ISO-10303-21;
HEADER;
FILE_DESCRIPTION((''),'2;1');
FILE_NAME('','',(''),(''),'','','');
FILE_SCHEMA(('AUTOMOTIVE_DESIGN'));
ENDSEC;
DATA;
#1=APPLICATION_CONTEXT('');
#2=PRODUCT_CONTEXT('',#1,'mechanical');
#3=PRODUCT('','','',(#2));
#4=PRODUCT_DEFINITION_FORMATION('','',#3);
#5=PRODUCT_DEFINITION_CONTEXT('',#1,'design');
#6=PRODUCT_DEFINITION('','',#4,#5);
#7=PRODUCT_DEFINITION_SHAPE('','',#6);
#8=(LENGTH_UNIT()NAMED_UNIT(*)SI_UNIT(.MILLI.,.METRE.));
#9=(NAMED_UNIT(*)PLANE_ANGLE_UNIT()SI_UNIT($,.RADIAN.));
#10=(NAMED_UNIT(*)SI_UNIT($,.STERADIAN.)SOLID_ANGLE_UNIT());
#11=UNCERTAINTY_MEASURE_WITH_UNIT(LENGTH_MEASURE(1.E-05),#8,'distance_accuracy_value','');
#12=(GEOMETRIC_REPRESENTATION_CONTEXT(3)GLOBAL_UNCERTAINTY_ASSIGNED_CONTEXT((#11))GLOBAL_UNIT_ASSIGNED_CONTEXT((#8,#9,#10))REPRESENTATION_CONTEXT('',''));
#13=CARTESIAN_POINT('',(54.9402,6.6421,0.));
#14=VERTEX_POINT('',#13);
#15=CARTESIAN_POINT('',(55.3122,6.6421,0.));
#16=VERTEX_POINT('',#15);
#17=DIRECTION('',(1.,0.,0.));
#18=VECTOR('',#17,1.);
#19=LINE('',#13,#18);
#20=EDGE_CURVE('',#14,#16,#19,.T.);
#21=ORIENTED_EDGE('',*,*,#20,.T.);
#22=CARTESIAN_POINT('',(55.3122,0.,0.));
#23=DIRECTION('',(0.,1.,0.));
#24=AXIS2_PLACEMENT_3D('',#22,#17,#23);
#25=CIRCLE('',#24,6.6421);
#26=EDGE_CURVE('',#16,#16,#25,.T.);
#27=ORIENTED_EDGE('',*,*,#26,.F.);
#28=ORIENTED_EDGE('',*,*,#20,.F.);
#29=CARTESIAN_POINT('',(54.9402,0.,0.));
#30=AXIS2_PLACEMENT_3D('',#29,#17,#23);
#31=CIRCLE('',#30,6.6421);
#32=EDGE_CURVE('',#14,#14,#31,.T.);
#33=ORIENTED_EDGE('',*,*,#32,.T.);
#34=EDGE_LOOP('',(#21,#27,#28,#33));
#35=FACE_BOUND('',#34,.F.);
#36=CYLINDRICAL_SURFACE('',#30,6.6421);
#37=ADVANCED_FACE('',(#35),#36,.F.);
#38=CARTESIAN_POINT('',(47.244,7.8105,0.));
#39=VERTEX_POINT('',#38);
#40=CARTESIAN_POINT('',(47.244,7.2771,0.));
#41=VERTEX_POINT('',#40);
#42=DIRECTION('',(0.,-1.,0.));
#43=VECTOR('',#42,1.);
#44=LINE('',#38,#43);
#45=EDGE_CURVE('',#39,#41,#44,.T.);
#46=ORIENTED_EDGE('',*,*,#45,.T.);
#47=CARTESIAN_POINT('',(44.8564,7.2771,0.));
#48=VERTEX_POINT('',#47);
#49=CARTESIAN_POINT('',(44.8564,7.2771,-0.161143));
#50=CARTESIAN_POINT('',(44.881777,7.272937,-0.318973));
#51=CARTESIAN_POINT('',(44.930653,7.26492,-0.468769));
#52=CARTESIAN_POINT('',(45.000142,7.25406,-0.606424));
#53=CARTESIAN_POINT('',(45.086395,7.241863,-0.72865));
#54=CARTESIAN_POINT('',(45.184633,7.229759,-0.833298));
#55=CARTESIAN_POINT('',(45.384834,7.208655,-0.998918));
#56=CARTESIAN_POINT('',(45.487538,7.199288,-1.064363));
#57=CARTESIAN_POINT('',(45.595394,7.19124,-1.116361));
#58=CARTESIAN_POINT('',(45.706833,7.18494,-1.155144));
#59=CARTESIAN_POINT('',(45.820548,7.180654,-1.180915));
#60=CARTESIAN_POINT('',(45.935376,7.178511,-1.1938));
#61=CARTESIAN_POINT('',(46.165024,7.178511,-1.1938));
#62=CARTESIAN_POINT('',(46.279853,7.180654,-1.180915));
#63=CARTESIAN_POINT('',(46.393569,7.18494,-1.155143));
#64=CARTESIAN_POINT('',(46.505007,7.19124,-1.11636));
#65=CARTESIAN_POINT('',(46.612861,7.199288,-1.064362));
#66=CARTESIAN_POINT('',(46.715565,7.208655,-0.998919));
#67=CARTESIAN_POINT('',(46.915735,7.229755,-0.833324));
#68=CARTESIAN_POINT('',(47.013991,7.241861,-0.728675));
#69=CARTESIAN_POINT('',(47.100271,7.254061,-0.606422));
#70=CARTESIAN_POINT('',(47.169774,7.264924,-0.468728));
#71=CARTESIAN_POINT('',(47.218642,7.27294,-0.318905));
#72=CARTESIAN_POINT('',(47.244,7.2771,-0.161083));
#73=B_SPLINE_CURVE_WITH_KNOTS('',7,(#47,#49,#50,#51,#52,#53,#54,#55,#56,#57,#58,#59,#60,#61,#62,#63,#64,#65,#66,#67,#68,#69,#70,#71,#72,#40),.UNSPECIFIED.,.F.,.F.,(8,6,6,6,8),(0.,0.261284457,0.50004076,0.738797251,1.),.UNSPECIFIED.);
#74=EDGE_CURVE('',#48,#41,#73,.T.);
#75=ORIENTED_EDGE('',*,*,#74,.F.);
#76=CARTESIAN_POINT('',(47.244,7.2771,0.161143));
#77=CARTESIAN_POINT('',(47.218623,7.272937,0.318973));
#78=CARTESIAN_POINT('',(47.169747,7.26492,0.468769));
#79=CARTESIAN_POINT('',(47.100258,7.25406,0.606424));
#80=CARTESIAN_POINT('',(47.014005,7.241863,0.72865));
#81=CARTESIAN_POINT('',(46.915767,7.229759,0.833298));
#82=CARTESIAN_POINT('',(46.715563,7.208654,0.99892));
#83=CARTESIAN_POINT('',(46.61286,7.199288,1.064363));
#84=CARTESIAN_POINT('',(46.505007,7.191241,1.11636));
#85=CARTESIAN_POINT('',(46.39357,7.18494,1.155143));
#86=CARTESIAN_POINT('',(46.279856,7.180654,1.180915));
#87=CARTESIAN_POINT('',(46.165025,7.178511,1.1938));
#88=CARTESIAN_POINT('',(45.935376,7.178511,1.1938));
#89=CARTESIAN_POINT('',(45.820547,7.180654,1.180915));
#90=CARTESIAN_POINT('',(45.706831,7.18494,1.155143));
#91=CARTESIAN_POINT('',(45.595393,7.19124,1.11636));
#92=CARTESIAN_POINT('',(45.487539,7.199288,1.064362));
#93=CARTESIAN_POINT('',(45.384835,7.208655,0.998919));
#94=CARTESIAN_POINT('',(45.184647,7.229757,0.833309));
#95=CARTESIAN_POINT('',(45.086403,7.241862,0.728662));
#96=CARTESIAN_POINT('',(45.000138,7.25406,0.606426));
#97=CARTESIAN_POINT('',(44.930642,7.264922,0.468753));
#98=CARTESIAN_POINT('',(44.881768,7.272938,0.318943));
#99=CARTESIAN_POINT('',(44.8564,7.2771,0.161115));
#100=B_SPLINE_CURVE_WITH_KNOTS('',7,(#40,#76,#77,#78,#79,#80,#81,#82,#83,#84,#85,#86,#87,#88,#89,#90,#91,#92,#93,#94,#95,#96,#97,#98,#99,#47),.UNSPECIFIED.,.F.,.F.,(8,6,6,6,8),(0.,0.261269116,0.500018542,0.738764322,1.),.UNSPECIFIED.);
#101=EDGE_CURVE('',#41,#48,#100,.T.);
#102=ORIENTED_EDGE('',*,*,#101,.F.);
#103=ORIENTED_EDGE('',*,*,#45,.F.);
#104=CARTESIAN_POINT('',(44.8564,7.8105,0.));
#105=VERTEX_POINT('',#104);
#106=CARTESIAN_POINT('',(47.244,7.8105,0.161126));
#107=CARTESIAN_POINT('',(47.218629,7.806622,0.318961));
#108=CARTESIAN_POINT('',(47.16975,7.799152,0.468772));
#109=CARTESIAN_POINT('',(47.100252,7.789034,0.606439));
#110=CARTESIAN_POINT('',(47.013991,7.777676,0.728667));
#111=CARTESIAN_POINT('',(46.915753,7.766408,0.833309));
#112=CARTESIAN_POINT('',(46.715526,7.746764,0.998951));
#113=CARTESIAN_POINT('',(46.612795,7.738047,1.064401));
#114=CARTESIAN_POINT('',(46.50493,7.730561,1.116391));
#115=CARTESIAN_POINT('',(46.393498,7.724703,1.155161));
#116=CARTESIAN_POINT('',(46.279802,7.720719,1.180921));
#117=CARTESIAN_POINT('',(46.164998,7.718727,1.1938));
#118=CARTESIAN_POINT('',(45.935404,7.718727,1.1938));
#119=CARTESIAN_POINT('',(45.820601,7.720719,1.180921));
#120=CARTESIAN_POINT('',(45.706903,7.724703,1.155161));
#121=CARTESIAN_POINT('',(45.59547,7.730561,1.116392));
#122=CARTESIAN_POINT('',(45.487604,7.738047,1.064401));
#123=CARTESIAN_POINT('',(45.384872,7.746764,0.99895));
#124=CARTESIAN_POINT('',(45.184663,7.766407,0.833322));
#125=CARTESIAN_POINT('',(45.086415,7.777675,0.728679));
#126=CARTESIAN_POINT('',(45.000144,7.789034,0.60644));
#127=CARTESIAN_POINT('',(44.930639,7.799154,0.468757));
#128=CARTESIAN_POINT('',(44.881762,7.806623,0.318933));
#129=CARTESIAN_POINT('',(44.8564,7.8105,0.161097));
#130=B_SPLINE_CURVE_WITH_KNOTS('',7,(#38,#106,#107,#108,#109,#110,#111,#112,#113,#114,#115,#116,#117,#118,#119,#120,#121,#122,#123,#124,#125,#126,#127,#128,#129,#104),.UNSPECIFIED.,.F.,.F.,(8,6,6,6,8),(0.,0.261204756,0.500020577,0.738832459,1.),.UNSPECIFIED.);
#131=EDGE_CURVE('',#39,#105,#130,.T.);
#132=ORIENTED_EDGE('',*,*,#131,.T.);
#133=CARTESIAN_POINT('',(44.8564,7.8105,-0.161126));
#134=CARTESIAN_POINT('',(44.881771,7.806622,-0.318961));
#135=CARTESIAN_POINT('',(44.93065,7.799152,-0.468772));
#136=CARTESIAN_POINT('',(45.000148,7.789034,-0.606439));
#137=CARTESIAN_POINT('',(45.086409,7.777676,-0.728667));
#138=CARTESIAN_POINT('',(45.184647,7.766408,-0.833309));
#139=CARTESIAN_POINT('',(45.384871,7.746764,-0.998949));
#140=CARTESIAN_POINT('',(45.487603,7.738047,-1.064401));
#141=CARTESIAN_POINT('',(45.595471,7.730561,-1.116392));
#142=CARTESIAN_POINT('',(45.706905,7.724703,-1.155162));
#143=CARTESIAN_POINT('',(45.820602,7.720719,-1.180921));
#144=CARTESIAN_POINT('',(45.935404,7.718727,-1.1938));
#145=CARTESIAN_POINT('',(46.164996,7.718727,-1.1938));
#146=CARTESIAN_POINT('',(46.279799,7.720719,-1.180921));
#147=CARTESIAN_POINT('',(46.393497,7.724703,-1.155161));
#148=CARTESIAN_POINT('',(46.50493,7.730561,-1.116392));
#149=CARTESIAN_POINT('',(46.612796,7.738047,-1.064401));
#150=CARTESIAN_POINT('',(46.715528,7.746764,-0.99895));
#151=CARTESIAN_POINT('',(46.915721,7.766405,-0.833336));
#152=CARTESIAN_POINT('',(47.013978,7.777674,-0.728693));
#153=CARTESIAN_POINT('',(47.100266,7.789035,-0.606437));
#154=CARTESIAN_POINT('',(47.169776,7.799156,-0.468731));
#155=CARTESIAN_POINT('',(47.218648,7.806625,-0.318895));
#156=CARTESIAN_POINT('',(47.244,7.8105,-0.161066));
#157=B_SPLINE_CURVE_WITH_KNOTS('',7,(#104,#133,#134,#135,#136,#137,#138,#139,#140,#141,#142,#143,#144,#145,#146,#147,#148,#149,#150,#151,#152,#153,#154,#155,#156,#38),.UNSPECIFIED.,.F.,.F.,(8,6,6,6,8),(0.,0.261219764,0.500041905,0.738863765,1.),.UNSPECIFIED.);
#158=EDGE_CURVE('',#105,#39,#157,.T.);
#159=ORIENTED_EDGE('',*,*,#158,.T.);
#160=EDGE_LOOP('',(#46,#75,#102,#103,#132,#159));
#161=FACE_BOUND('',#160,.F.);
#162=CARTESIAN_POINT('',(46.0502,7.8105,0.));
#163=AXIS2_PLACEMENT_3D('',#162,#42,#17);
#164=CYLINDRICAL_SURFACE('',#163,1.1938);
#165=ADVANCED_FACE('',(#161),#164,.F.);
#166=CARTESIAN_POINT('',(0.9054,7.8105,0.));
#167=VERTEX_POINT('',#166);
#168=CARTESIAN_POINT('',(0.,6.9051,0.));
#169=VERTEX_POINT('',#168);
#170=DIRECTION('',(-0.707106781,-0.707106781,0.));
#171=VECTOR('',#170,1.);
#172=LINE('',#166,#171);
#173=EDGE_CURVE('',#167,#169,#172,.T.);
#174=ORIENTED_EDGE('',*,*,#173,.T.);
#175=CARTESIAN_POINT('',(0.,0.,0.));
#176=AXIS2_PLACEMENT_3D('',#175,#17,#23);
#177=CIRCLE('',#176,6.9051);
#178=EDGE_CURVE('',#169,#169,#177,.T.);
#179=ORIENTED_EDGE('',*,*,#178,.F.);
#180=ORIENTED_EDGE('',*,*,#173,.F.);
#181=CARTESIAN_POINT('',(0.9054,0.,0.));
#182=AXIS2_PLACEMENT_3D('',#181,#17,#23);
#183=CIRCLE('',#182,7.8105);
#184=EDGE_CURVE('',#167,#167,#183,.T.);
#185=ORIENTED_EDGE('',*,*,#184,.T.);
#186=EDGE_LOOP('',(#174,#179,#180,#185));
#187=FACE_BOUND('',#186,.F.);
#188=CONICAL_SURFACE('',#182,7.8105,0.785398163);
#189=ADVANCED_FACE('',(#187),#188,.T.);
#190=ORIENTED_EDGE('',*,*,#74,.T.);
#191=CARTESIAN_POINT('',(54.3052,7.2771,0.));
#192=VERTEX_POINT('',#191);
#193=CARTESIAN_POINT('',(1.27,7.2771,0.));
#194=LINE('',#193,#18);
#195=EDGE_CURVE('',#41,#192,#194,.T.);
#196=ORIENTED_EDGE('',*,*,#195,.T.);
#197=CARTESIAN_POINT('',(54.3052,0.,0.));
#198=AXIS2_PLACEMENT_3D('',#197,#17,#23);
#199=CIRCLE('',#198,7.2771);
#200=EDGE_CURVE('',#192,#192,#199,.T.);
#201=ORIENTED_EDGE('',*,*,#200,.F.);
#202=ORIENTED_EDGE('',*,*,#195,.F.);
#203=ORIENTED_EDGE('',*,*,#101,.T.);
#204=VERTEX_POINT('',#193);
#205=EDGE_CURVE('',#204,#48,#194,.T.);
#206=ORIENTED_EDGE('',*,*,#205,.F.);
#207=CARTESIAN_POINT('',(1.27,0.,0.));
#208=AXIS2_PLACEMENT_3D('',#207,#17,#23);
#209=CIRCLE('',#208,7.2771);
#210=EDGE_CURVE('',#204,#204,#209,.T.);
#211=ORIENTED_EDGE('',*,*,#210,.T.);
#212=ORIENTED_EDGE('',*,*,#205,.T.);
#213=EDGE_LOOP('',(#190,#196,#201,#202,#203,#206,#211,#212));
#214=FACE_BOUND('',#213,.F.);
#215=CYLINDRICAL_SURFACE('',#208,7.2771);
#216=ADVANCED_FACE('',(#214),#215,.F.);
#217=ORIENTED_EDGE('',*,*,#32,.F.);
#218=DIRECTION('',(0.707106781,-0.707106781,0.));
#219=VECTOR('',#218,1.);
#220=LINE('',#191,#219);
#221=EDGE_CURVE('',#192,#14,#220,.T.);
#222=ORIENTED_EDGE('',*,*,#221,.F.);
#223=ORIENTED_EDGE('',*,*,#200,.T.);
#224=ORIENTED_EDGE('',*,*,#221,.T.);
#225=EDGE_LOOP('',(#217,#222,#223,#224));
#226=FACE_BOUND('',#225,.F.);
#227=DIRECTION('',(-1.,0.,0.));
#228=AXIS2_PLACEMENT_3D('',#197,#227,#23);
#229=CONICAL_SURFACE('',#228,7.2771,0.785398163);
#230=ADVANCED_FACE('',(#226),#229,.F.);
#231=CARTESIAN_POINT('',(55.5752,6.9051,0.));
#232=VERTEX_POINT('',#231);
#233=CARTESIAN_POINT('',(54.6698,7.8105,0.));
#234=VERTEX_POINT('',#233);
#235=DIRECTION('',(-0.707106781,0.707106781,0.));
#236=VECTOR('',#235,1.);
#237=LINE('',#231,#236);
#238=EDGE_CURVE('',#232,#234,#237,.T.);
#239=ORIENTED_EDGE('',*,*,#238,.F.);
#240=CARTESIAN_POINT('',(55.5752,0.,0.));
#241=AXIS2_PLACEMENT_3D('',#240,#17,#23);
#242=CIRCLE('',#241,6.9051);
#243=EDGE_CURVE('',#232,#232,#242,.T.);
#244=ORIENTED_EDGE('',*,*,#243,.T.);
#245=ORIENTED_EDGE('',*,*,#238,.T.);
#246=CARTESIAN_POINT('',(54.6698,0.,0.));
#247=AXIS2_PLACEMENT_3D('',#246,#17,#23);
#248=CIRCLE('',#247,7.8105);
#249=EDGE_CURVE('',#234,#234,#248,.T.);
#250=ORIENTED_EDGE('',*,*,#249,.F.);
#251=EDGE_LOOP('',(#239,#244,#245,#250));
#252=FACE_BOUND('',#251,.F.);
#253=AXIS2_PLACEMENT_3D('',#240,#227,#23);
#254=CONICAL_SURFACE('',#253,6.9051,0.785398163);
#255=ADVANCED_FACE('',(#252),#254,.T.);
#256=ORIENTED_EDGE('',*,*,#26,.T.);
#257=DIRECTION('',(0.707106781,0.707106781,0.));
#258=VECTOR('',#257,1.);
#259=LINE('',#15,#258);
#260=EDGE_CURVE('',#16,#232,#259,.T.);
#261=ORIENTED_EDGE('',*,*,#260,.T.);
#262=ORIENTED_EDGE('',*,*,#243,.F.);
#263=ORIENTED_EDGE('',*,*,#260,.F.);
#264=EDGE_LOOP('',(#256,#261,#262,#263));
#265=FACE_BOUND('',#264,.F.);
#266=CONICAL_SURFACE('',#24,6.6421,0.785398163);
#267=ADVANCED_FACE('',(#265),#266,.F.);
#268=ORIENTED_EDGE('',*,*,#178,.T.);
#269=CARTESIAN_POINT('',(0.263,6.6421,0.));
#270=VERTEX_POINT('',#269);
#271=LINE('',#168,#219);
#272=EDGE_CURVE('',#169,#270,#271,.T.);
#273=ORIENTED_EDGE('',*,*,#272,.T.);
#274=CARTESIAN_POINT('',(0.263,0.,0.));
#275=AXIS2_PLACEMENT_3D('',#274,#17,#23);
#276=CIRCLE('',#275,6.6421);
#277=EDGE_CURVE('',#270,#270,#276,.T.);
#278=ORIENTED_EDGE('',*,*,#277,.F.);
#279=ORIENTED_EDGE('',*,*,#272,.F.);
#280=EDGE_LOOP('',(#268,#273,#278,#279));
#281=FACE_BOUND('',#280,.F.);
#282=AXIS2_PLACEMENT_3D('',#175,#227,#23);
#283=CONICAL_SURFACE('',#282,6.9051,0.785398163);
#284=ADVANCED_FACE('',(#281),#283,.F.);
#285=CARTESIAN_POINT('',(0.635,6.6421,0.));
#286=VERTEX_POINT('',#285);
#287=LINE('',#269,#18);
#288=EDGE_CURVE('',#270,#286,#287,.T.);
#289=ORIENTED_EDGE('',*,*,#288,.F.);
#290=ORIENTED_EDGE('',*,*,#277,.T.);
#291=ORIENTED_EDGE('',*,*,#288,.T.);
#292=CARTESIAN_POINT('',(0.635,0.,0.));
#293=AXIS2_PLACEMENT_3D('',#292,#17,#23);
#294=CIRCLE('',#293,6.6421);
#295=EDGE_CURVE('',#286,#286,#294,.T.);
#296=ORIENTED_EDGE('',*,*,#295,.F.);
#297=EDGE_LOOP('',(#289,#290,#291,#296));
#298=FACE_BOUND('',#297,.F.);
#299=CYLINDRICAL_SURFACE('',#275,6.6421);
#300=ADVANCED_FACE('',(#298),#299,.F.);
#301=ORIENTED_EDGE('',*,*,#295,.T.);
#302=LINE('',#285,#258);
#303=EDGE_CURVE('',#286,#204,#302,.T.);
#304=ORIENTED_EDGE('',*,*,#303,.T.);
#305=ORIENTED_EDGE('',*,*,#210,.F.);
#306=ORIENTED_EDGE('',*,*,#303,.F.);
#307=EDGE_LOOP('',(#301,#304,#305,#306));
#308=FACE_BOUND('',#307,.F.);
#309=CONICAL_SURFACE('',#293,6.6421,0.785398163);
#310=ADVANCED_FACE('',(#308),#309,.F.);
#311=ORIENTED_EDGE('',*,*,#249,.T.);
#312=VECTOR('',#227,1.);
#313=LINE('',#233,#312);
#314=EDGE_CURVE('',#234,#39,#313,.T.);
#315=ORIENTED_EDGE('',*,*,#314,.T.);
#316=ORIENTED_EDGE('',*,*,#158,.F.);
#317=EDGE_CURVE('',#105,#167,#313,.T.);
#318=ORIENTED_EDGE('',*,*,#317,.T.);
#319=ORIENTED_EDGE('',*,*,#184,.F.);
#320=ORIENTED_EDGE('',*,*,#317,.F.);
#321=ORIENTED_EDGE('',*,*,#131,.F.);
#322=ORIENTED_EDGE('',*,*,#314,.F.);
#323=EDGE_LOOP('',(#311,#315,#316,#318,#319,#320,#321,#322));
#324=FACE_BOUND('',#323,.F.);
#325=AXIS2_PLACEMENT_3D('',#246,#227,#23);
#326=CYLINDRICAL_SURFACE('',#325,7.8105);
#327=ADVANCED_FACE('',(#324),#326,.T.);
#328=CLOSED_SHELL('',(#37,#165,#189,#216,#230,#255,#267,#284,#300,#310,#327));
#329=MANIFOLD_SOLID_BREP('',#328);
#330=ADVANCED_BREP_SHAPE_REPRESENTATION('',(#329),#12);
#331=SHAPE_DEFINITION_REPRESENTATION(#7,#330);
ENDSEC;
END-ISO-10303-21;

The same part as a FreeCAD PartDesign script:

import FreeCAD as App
import Part
import Sketcher
from FreeCAD import Vector
Q = App.Units.Quantity

doc = App.newDocument("Part")
body = doc.addObject("PartDesign::Body", "Body")

sketch1 = doc.addObject("Sketcher::SketchObject", "Sketch")
body.addObject(sketch1)
sketch1.AttachmentSupport = (doc.XY_Plane, [""])
sketch1.MapMode = "FlatFace"
sketch1.addGeometry(Part.LineSegment(Vector(0.91, 7.81, 0), Vector(0, 6.91, 0)), False)
sketch1.addGeometry(Part.LineSegment(Vector(0, 6.91, 0), Vector(0.26, 6.64, 0)), False)
sketch1.addGeometry(Part.LineSegment(Vector(0.26, 6.64, 0), Vector(0.64, 6.64, 0)), False)
sketch1.addGeometry(Part.LineSegment(Vector(0.64, 6.64, 0), Vector(1.27, 7.28, 0)), False)
sketch1.addGeometry(Part.LineSegment(Vector(1.27, 7.28, 0), Vector(54.31, 7.28, 0)), False)
sketch1.addGeometry(Part.LineSegment(Vector(54.31, 7.28, 0), Vector(54.94, 6.64, 0)), False)
sketch1.addGeometry(Part.LineSegment(Vector(54.94, 6.64, 0), Vector(55.31, 6.64, 0)), False)
sketch1.addGeometry(Part.LineSegment(Vector(55.31, 6.64, 0), Vector(55.58, 6.91, 0)), False)
sketch1.addGeometry(Part.LineSegment(Vector(55.58, 6.91, 0), Vector(54.67, 7.81, 0)), False)
sketch1.addGeometry(Part.LineSegment(Vector(54.67, 7.81, 0), Vector(0.91, 7.81, 0)), False)
sketch1.addConstraint(Sketcher.Constraint("Coincident", 0, 2, 1, 1))
sketch1.addConstraint(Sketcher.Constraint("Coincident", 1, 2, 2, 1))
sketch1.addConstraint(Sketcher.Constraint("Coincident", 2, 2, 3, 1))
sketch1.addConstraint(Sketcher.Constraint("Coincident", 3, 2, 4, 1))
sketch1.addConstraint(Sketcher.Constraint("Coincident", 4, 2, 5, 1))
sketch1.addConstraint(Sketcher.Constraint("Coincident", 5, 2, 6, 1))
sketch1.addConstraint(Sketcher.Constraint("Coincident", 6, 2, 7, 1))
sketch1.addConstraint(Sketcher.Constraint("Coincident", 7, 2, 8, 1))
sketch1.addConstraint(Sketcher.Constraint("Coincident", 8, 2, 9, 1))
sketch1.addConstraint(Sketcher.Constraint("Coincident", 9, 2, 0, 1))
sketch1.addConstraint(Sketcher.Constraint("Horizontal", 2))
sketch1.addConstraint(Sketcher.Constraint("Horizontal", 4))
sketch1.addConstraint(Sketcher.Constraint("Horizontal", 6))
sketch1.addConstraint(Sketcher.Constraint("Horizontal", 9))
sketch1.addConstraint(Sketcher.Constraint("PointOnObject", 0, 2, -2))
sketch1.addConstraint(Sketcher.Constraint("Perpendicular", 0, 1))
sketch1.addConstraint(Sketcher.Constraint("Perpendicular", 1, 3))
sketch1.addConstraint(Sketcher.Constraint("Perpendicular", 3, 5))
sketch1.addConstraint(Sketcher.Constraint("Perpendicular", 5, 7))
sketch1.addConstraint(Sketcher.Constraint("Perpendicular", 7, 8))
sketch1.addConstraint(Sketcher.Constraint("Horizontal", 2, 2, 5, 2))
sketch1.addConstraint(Sketcher.Constraint("Horizontal", 0, 2, 7, 2))
sketch1.addConstraint(Sketcher.Constraint("Equal", 2, 6))
sketch1.addConstraint(Sketcher.Constraint("Equal", 3, 5))
sketch1.addConstraint(Sketcher.Constraint("DistanceX", 4, 1, 4, 2, Q("2.088 in")))
sketch1.addConstraint(Sketcher.Constraint("DistanceX", -1, 1, 3, 2, Q("0.05 in")))
sketch1.addConstraint(Sketcher.Constraint("DistanceX", 9, 2, 9, 1, Q("2.1167 in")))
sketch1.addConstraint(Sketcher.Constraint("DistanceX", -1, 1, 2, 2, Q("0.025 in")))
sketch1.addConstraint(Sketcher.Constraint("DistanceY", 4, 2, 8, 2, Q("0.021 in")))
sketch1.addConstraint(Sketcher.Constraint("DistanceY", -1, 1, 1, 2, Q("0.2615 in")))
revolution = doc.addObject("PartDesign::Revolution", "Revolution")
body.addObject(revolution)
revolution.Profile = sketch1
revolution.ReferenceAxis = (sketch1, ["H_Axis"])
revolution.Angle = 360

sketch2 = doc.addObject("Sketcher::SketchObject", "Sketch001")
body.addObject(sketch2)
sketch2.AttachmentSupport = (doc.XY_Plane, [""])
sketch2.MapMode = "FlatFace"
sketch2.addGeometry(Part.LineSegment(Vector(46.1, 7.8, 0), Vector(46.1, 0, 0)), False)
sketch2.addGeometry(Part.LineSegment(Vector(46.1, 0, 0), Vector(47.2, 0, 0)), False)
sketch2.addGeometry(Part.LineSegment(Vector(47.2, 0, 0), Vector(47.2, 7.8, 0)), False)
sketch2.addGeometry(Part.LineSegment(Vector(47.2, 7.8, 0), Vector(46.1, 7.8, 0)), False)
sketch2.addGeometry(Part.LineSegment(Vector(46.1, 7.8, 0), Vector(46.1, 0, 0)), True)
sketch2.addConstraint(Sketcher.Constraint("Coincident", 0, 2, 1, 1))
sketch2.addConstraint(Sketcher.Constraint("Coincident", 1, 2, 2, 1))
sketch2.addConstraint(Sketcher.Constraint("Coincident", 2, 2, 3, 1))
sketch2.addConstraint(Sketcher.Constraint("Coincident", 3, 2, 0, 1))
sketch2.addConstraint(Sketcher.Constraint("Vertical", 0))
sketch2.addConstraint(Sketcher.Constraint("Horizontal", 1))
sketch2.addConstraint(Sketcher.Constraint("Vertical", 2))
sketch2.addConstraint(Sketcher.Constraint("Horizontal", 3))
sketch2.addConstraint(Sketcher.Constraint("Vertical", 4))
sketch2.addConstraint(Sketcher.Constraint("Coincident", 4, 1, 3, 2))
sketch2.addConstraint(Sketcher.Constraint("PointOnObject", 0, 2, -1))
sketch2.addConstraint(Sketcher.Constraint("PointOnObject", 4, 2, -1))
sketch2.addConstraint(Sketcher.Constraint("DistanceX", 1, 1, 1, 2, Q("0.047 in")))
sketch2.addConstraint(Sketcher.Constraint("DistanceX", -1, 1, 1, 2, Q("1.86 in")))
sketch2.addConstraint(Sketcher.Constraint("DistanceY", 0, 2, 0, 1, Q("0.3075 in")))
groove = doc.addObject("PartDesign::Groove", "Groove")
body.addObject(groove)
groove.Profile = sketch2
groove.ReferenceAxis = (sketch2, ["Axis0"])
groove.Angle = 360

doc.recompute()
